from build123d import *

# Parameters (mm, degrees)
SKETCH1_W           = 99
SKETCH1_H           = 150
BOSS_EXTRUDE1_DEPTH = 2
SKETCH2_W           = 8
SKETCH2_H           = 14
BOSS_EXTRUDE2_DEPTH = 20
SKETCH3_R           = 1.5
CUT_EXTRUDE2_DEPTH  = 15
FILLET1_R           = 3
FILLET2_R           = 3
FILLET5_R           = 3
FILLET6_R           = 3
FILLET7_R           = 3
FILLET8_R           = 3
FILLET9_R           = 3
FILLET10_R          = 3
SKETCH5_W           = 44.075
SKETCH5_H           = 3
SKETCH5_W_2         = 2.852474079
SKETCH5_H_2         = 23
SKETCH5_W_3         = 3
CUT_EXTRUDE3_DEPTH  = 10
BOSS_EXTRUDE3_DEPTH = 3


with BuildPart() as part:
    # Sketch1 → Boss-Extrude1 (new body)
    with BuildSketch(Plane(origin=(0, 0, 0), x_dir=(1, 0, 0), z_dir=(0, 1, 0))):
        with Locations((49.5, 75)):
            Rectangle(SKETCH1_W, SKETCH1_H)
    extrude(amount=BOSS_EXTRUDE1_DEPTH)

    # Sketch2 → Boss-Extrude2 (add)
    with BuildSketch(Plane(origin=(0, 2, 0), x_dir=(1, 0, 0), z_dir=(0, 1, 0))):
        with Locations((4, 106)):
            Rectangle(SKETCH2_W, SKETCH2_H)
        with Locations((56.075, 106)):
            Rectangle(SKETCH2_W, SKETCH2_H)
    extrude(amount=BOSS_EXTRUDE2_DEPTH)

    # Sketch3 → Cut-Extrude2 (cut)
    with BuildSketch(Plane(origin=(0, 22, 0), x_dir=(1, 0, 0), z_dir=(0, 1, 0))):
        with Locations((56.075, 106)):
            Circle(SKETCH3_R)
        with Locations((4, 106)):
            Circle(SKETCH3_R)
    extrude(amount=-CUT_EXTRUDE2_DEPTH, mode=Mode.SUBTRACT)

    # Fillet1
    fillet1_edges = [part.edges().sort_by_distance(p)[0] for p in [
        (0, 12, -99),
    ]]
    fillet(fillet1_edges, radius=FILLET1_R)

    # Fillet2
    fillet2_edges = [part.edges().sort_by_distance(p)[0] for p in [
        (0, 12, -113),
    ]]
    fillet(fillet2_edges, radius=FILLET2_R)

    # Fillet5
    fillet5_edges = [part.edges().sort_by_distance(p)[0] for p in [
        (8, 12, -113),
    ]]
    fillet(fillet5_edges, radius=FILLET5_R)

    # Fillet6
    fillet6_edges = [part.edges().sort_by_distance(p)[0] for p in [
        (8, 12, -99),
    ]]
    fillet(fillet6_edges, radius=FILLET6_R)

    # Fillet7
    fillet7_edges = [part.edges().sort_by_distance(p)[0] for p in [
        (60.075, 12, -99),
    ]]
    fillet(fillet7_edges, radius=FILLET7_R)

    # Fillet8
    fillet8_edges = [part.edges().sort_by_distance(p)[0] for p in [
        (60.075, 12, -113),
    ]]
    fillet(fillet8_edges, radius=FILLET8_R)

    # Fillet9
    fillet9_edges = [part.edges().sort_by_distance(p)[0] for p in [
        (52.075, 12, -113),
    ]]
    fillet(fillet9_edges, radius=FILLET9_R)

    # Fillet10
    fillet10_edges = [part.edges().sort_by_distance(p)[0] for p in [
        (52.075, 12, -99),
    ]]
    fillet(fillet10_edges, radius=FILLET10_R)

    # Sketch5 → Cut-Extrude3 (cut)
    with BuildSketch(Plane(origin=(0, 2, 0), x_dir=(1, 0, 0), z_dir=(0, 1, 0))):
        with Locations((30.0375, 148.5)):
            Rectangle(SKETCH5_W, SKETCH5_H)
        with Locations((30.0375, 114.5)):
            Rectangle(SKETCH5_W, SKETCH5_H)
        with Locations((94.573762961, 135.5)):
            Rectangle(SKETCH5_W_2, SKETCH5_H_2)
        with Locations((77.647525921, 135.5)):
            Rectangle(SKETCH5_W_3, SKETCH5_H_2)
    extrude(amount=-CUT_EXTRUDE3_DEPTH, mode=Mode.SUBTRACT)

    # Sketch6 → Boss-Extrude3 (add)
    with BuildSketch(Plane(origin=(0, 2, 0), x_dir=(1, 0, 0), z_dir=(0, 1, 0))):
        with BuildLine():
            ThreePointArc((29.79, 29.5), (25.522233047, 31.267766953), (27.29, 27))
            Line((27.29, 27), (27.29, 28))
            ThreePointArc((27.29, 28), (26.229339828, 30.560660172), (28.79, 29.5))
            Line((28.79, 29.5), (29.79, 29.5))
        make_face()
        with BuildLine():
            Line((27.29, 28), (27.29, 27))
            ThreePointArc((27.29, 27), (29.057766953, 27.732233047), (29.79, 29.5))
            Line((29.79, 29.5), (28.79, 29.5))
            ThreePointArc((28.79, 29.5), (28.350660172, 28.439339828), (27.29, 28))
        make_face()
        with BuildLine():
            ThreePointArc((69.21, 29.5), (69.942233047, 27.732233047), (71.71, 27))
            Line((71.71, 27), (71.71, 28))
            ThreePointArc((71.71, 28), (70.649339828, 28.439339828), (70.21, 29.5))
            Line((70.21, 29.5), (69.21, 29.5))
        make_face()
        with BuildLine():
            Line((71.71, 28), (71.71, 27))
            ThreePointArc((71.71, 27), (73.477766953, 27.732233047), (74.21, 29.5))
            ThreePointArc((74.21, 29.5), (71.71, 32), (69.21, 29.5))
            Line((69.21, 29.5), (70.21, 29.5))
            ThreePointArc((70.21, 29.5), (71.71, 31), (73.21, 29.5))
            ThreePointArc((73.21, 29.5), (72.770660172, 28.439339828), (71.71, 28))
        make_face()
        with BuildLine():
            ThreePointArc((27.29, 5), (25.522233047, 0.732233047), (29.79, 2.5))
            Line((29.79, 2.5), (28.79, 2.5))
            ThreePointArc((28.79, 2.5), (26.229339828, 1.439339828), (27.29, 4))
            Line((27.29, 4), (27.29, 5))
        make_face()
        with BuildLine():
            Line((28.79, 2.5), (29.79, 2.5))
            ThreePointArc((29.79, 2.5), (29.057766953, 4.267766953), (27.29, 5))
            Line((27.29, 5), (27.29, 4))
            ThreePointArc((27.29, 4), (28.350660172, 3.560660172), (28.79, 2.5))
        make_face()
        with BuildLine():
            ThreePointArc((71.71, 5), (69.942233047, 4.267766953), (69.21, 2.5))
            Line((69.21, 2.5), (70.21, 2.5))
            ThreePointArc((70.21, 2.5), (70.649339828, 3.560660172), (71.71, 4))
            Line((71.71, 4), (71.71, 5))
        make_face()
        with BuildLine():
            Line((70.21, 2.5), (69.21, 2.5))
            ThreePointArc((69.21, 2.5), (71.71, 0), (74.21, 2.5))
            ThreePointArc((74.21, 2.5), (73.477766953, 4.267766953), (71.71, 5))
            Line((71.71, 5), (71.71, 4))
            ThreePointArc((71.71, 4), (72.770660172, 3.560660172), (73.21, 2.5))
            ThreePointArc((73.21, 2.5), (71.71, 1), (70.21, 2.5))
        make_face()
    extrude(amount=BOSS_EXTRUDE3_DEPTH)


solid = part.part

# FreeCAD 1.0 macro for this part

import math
import FreeCAD as App
import Part
import Sketcher

V = App.Vector
Q = App.Units.Quantity


def edges_at(feature, points):
    """Names of the edges that pass closest to the given points."""
    edges = feature.Shape.Edges
    near = lambda p: min(range(len(edges)), key=lambda i: edges[i].distToShape(Part.Vertex(*p))[0])
    return sorted({f"Edge{near(p) + 1}" for p in points})


def add_polygon(sketch, points):
    """Adds a closed chain of lines whose ends are joined by coincident constraints."""
    first, n = sketch.GeometryCount, len(points)
    for a, b in zip(points, points[1:] + points[:1]):
        sketch.addGeometry(Part.LineSegment(App.Vector(*a, 0), App.Vector(*b, 0)), False)
    for i in range(n):
        sketch.addConstraint(Sketcher.Constraint("Coincident", first + i, 2, first + (i + 1) % n, 1))

doc = App.newDocument("Part")
params = doc.addObject("Spreadsheet::Sheet", "Params")
for row, (alias, value) in enumerate([
    ("sketch1_width", "99 mm"),
    ("sketch1_height", "150 mm"),
    ("pad1_length", "2 mm"),
    ("sketch2_width", "8 mm"),
    ("sketch2_height", "14 mm"),
    ("pad2_length", "20 mm"),
    ("sketch3_diameter", "3 mm"),
    ("pocket1_length", "15 mm"),
    ("fillet_radius", "3 mm"),
    ("fillet2_radius", "3 mm"),
    ("fillet3_radius", "3 mm"),
    ("fillet4_radius", "3 mm"),
    ("fillet5_radius", "3 mm"),
    ("fillet6_radius", "3 mm"),
    ("fillet7_radius", "3 mm"),
    ("fillet8_radius", "3 mm"),
    ("sketch4_width", "3 mm"),
    ("sketch4_height", "23 mm"),
    ("pocket2_length", "10 mm"),
    ("sketch5_radius", "2.5 mm"),
    ("sketch5_radius2", "1.5 mm"),
    ("pad3_length", "3 mm"),
], start=1):
    params.set(f"A{row}", alias)
    params.set(f"B{row}", "=" + value)
    params.setAlias(f"B{row}", alias)

body = doc.addObject("PartDesign::Body", "Body")

sketch1 = doc.addObject("Sketcher::SketchObject", "Sketch")
body.addObject(sketch1)
sketch1.AttachmentSupport = (doc.XZ_Plane, [""])
sketch1.MapMode = "FlatFace"
add_polygon(sketch1, [(0, -150), (0, 0), (99, 0), (99, -150)])
sketch1.addConstraint(Sketcher.Constraint("Vertical", 0))
sketch1.addConstraint(Sketcher.Constraint("Horizontal", 1))
sketch1.addConstraint(Sketcher.Constraint("Vertical", 2))
sketch1.addConstraint(Sketcher.Constraint("Horizontal", 3))
sketch1.addConstraint(Sketcher.Constraint("Coincident", 0, 2, -1, 1))
sketch1.addConstraint(Sketcher.Constraint("DistanceX", 1, 1, 1, 2, Q("99 mm")))
sketch1.addConstraint(Sketcher.Constraint("DistanceY", 0, 1, 0, 2, Q("150 mm")))
sketch1.setExpression("Constraints[9]", "Params.sketch1_width")
sketch1.setExpression("Constraints[10]", "Params.sketch1_height")
pad1 = doc.addObject("PartDesign::Pad", "Pad")
body.addObject(pad1)
pad1.Profile = sketch1
pad1.setExpression("Length", "Params.pad1_length")
pad1.Reversed = True

sketch2 = doc.addObject("Sketcher::SketchObject", "Sketch001")
body.addObject(sketch2)
sketch2.AttachmentSupport = (doc.XZ_Plane, [""])
sketch2.MapMode = "FlatFace"
sketch2.AttachmentOffset = App.Placement(V(0, 0, -2), App.Rotation())
add_polygon(sketch2, [(0, -113), (0, -99), (8, -99), (8, -113)])
add_polygon(sketch2, [(52, -113), (52, -99), (60, -99), (60, -113)])
sketch2.addConstraint(Sketcher.Constraint("Vertical", 0))
sketch2.addConstraint(Sketcher.Constraint("Horizontal", 1))
sketch2.addConstraint(Sketcher.Constraint("Vertical", 2))
sketch2.addConstraint(Sketcher.Constraint("Horizontal", 3))
sketch2.addConstraint(Sketcher.Constraint("Vertical", 4))
sketch2.addConstraint(Sketcher.Constraint("Horizontal", 5))
sketch2.addConstraint(Sketcher.Constraint("Vertical", 6))
sketch2.addConstraint(Sketcher.Constraint("Horizontal", 7))
sketch2.addConstraint(Sketcher.Constraint("PointOnObject", 0, 2, -2))
sketch2.addConstraint(Sketcher.Constraint("Horizontal", 1, 2, 4, 2))
sketch2.addConstraint(Sketcher.Constraint("Horizontal", 3, 2, 6, 2))
sketch2.addConstraint(Sketcher.Constraint("Equal", 3, 5))
sketch2.addConstraint(Sketcher.Constraint("DistanceX", 1, 1, 1, 2, Q("8 mm")))
sketch2.addConstraint(Sketcher.Constraint("DistanceY", 0, 1, 0, 2, Q("14 mm")))
sketch2.addConstraint(Sketcher.Constraint("DistanceY", 0, 2, -1, 1, Q("99 mm")))
sketch2.addConstraint(Sketcher.Constraint("DistanceX", -1, 1, 4, 2, Q("52.075 mm")))
sketch2.setExpression("Constraints[20]", "Params.sketch2_width")
sketch2.setExpression("Constraints[21]", "Params.sketch2_height")
pad2 = doc.addObject("PartDesign::Pad", "Pad001")
body.addObject(pad2)
pad2.Profile = sketch2
pad2.setExpression("Length", "Params.pad2_length")
pad2.Reversed = True

sketch3 = doc.addObject("Sketcher::SketchObject", "Sketch002")
body.addObject(sketch3)
sketch3.AttachmentSupport = (doc.XZ_Plane, [""])
sketch3.MapMode = "FlatFace"
sketch3.AttachmentOffset = App.Placement(V(0, 0, -22), App.Rotation())
sketch3.addGeometry(Part.Circle(V(56.1, -106, 0), V(0, 0, 1), 1.5), False)
sketch3.addGeometry(Part.Circle(V(4, -106, 0), V(0, 0, 1), 1.5), False)
sketch3.addConstraint(Sketcher.Constraint("Equal", 0, 1))
sketch3.addConstraint(Sketcher.Constraint("Horizontal", 0, 3, 1, 3))
sketch3.addConstraint(Sketcher.Constraint("Diameter", 0, Q("3 mm")))
sketch3.addConstraint(Sketcher.Constraint("DistanceY", 0, 3, -1, 1, Q("106 mm")))
sketch3.addConstraint(Sketcher.Constraint("DistanceX", -1, 1, 1, 3, Q("4 mm")))
sketch3.addConstraint(Sketcher.Constraint("DistanceX", -1, 1, 0, 3, Q("56.075 mm")))
sketch3.setExpression("Constraints[2]", "Params.sketch3_diameter")
pocket1 = doc.addObject("PartDesign::Pocket", "Pocket")
body.addObject(pocket1)
pocket1.Profile = sketch3
pocket1.setExpression("Length", "Params.pocket1_length")
pocket1.Reversed = True
doc.recompute()

fillet = doc.addObject("PartDesign::Fillet", "Fillet")
body.addObject(fillet)
fillet.Base = (pocket1, edges_at(pocket1, [(0, 12, -99)]))
fillet.setExpression("Radius", "Params.fillet_radius")
doc.recompute()

fillet2 = doc.addObject("PartDesign::Fillet", "Fillet001")
body.addObject(fillet2)
fillet2.Base = (fillet, edges_at(fillet, [(0, 12, -113)]))
fillet2.setExpression("Radius", "Params.fillet2_radius")
doc.recompute()

fillet3 = doc.addObject("PartDesign::Fillet", "Fillet002")
body.addObject(fillet3)
fillet3.Base = (fillet2, edges_at(fillet2, [(8, 12, -113)]))
fillet3.setExpression("Radius", "Params.fillet3_radius")
doc.recompute()

fillet4 = doc.addObject("PartDesign::Fillet", "Fillet003")
body.addObject(fillet4)
fillet4.Base = (fillet3, edges_at(fillet3, [(8, 12, -99)]))
fillet4.setExpression("Radius", "Params.fillet4_radius")
doc.recompute()

fillet5 = doc.addObject("PartDesign::Fillet", "Fillet004")
body.addObject(fillet5)
fillet5.Base = (fillet4, edges_at(fillet4, [(60.075, 12, -99)]))
fillet5.setExpression("Radius", "Params.fillet5_radius")
doc.recompute()

fillet6 = doc.addObject("PartDesign::Fillet", "Fillet005")
body.addObject(fillet6)
fillet6.Base = (fillet5, edges_at(fillet5, [(60.075, 12, -113)]))
fillet6.setExpression("Radius", "Params.fillet6_radius")
doc.recompute()

fillet7 = doc.addObject("PartDesign::Fillet", "Fillet006")
body.addObject(fillet7)
fillet7.Base = (fillet6, edges_at(fillet6, [(52.075, 12, -113)]))
fillet7.setExpression("Radius", "Params.fillet7_radius")
doc.recompute()

fillet8 = doc.addObject("PartDesign::Fillet", "Fillet007")
body.addObject(fillet8)
fillet8.Base = (fillet7, edges_at(fillet7, [(52.075, 12, -99)]))
fillet8.setExpression("Radius", "Params.fillet8_radius")

sketch4 = doc.addObject("Sketcher::SketchObject", "Sketch003")
body.addObject(sketch4)
sketch4.AttachmentSupport = (doc.XZ_Plane, [""])
sketch4.MapMode = "FlatFace"
sketch4.AttachmentOffset = App.Placement(V(0, 0, -2), App.Rotation())
add_polygon(sketch4, [(8, -150), (8, -147), (52.1, -147), (52.1, -150)])
add_polygon(sketch4, [(8, -116), (8, -113), (52.1, -113), (52.1, -116)])
add_polygon(sketch4, [(93.1, -147), (93.1, -124), (96, -124), (96, -147)])
add_polygon(sketch4, [(76.1, -147), (76.1, -124), (79.1, -124), (79.1, -147)])
sketch4.addConstraint(Sketcher.Constraint("Vertical", 0))
sketch4.addConstraint(Sketcher.Constraint("Horizontal", 1))
sketch4.addConstraint(Sketcher.Constraint("Vertical", 2))
sketch4.addConstraint(Sketcher.Constraint("Horizontal", 3))
sketch4.addConstraint(Sketcher.Constraint("Vertical", 4))
sketch4.addConstraint(Sketcher.Constraint("Horizontal", 5))
sketch4.addConstraint(Sketcher.Constraint("Vertical", 6))
sketch4.addConstraint(Sketcher.Constraint("Horizontal", 7))
sketch4.addConstraint(Sketcher.Constraint("Vertical", 8))
sketch4.addConstraint(Sketcher.Constraint("Horizontal", 9))
sketch4.addConstraint(Sketcher.Constraint("Vertical", 10))
sketch4.addConstraint(Sketcher.Constraint("Horizontal", 11))
sketch4.addConstraint(Sketcher.Constraint("Vertical", 12))
sketch4.addConstraint(Sketcher.Constraint("Horizontal", 13))
sketch4.addConstraint(Sketcher.Constraint("Vertical", 14))
sketch4.addConstraint(Sketcher.Constraint("Horizontal", 15))
sketch4.addConstraint(Sketcher.Constraint("Horizontal", 1, 2, 10, 2))
sketch4.addConstraint(Sketcher.Constraint("Horizontal", 9, 2, 12, 2))
sketch4.addConstraint(Sketcher.Constraint("Horizontal", 11, 2, 14, 2))
sketch4.addConstraint(Sketcher.Constraint("Vertical", 3, 2, 4, 2))
sketch4.addConstraint(Sketcher.Constraint("Vertical", 2, 2, 5, 2))
sketch4.addConstraint(Sketcher.Constraint("Equal", 15, 0))
sketch4.addConstraint(Sketcher.Constraint("Equal", 2, 4))
sketch4.addConstraint(Sketcher.Constraint("DistanceX", 13, 1, 13, 2, Q("3 mm")))
sketch4.addConstraint(Sketcher.Constraint("DistanceY", 8, 1, 8, 2, Q("23 mm")))
sketch4.addConstraint(Sketcher.Constraint("DistanceX", -1, 1, 0, 2, Q("8 mm")))
sketch4.addConstraint(Sketcher.Constraint("DistanceY", 0, 2, -1, 1, Q("147 mm")))
sketch4.addConstraint(Sketcher.Constraint("DistanceY", 4, 2, -1, 1, Q("113 mm")))
sketch4.addConstraint(Sketcher.Constraint("DistanceX", -1, 1, 9, 2, Q("96 mm")))
sketch4.addConstraint(Sketcher.Constraint("DistanceX", 12, 2, 8, 2, Q("17 mm")))
sketch4.addConstraint(Sketcher.Constraint("DistanceX", 1, 1, 1, 2, Q("44.075 mm")))
sketch4.addConstraint(Sketcher.Constraint("DistanceX", 9, 1, 9, 2, Q("2.852474 mm")))
sketch4.setExpression("Constraints[39]", "Params.sketch4_width")
sketch4.setExpression("Constraints[40]", "Params.sketch4_height")
pocket2 = doc.addObject("PartDesign::Pocket", "Pocket001")
body.addObject(pocket2)
pocket2.Profile = sketch4
pocket2.setExpression("Length", "Params.pocket2_length")
pocket2.Reversed = True

sketch5 = doc.addObject("Sketcher::SketchObject", "Sketch004")
body.addObject(sketch5)
sketch5.AttachmentSupport = (doc.XZ_Plane, [""])
sketch5.MapMode = "FlatFace"
sketch5.AttachmentOffset = App.Placement(V(0, 0, -2), App.Rotation())
sketch5.addGeometry(Part.ArcOfCircle(Part.Circle(V(27.3, -29.5, 0), V(0, 0, 1), 2.5), math.radians(90), math.radians(360)), False)
sketch5.addGeometry(Part.ArcOfCircle(Part.Circle(V(27.3, -29.5, 0), V(0, 0, 1), 2.5), math.radians(0), math.radians(90)), False)
sketch5.addGeometry(Part.ArcOfCircle(Part.Circle(V(27.3, -29.5, 0), V(0, 0, 1), 1.5), math.radians(90), math.radians(360)), False)
sketch5.addGeometry(Part.ArcOfCircle(Part.Circle(V(27.3, -29.5, 0), V(0, 0, 1), 1.5), math.radians(0), math.radians(90)), False)
sketch5.addGeometry(Part.ArcOfCircle(Part.Circle(V(71.7, -29.5, 0), V(0, 0, 1), 2.5), math.radians(90), math.radians(180)), False)
sketch5.addGeometry(Part.ArcOfCircle(Part.Circle(V(71.7, -29.5, 0), V(0, 0, 1), 2.5), math.radians(0), math.radians(90)), False)
sketch5.addGeometry(Part.ArcOfCircle(Part.Circle(V(71.7, -29.5, 0), V(0, 0, 1), 2.5), math.radians(180), math.radians(360)), False)
sketch5.addGeometry(Part.ArcOfCircle(Part.Circle(V(71.7, -29.5, 0), V(0, 0, 1), 1.5), math.radians(90), math.radians(180)), False)
sketch5.addGeometry(Part.ArcOfCircle(Part.Circle(V(71.7, -29.5, 0), V(0, 0, 1), 1.5), math.radians(180), math.radians(360)), False)
sketch5.addGeometry(Part.ArcOfCircle(Part.Circle(V(71.7, -29.5, 0), V(0, 0, 1), 1.5), math.radians(0), math.radians(90)), False)
sketch5.addGeometry(Part.ArcOfCircle(Part.Circle(V(27.3, -2.5, 0), V(0, 0, 1), 2.5), math.radians(0), math.radians(270)), False)
sketch5.addGeometry(Part.ArcOfCircle(Part.Circle(V(27.3, -2.5, 0), V(0, 0, 1), 2.5), math.radians(-90), math.radians(0)), False)
sketch5.addGeometry(Part.ArcOfCircle(Part.Circle(V(27.3, -2.5, 0), V(0, 0, 1), 1.5), math.radians(0), math.radians(270)), False)
sketch5.addGeometry(Part.ArcOfCircle(Part.Circle(V(27.3, -2.5, 0), V(0, 0, 1), 1.5), math.radians(-90), math.radians(0)), False)
sketch5.addGeometry(Part.ArcOfCircle(Part.Circle(V(71.7, -2.5, 0), V(0, 0, 1), 2.5), math.radians(180), math.radians(270)), False)
sketch5.addGeometry(Part.ArcOfCircle(Part.Circle(V(71.7, -2.5, 0), V(0, 0, 1), 2.5), math.radians(0), math.radians(180)), False)
sketch5.addGeometry(Part.ArcOfCircle(Part.Circle(V(71.7, -2.5, 0), V(0, 0, 1), 2.5), math.radians(-90), math.radians(0)), False)
sketch5.addGeometry(Part.ArcOfCircle(Part.Circle(V(71.7, -2.5, 0), V(0, 0, 1), 1.5), math.radians(180), math.radians(270)), False)
sketch5.addGeometry(Part.ArcOfCircle(Part.Circle(V(71.7, -2.5, 0), V(0, 0, 1), 1.5), math.radians(-90), math.radians(0)), False)
sketch5.addGeometry(Part.ArcOfCircle(Part.Circle(V(71.7, -2.5, 0), V(0, 0, 1), 1.5), math.radians(0), math.radians(180)), False)
sketch5.addConstraint(Sketcher.Constraint("Tangent", 0, 1, 1, 2))
sketch5.addConstraint(Sketcher.Constraint("Coincident", 1, 1, 0, 2))
sketch5.addConstraint(Sketcher.Constraint("Tangent", 2, 1, 3, 2))
sketch5.addConstraint(Sketcher.Constraint("Coincident", 3, 1, 2, 2))
sketch5.addConstraint(Sketcher.Constraint("Tangent", 4, 1, 5, 2))
sketch5.addConstraint(Sketcher.Constraint("Tangent", 5, 1, 6, 2))
sketch5.addConstraint(Sketcher.Constraint("Tangent", 6, 1, 4, 2))
sketch5.addConstraint(Sketcher.Constraint("Tangent", 7, 2, 8, 1))
sketch5.addConstraint(Sketcher.Constraint("Tangent", 8, 2, 9, 1))
sketch5.addConstraint(Sketcher.Constraint("Tangent", 9, 2, 7, 1))
sketch5.addConstraint(Sketcher.Constraint("Tangent", 10, 1, 11, 2))
sketch5.addConstraint(Sketcher.Constraint("Coincident", 11, 1, 10, 2))
sketch5.addConstraint(Sketcher.Constraint("Tangent", 12, 1, 13, 2))
sketch5.addConstraint(Sketcher.Constraint("Coincident", 13, 1, 12, 2))
sketch5.addConstraint(Sketcher.Constraint("Tangent", 14, 1, 15, 2))
sketch5.addConstraint(Sketcher.Constraint("Tangent", 15, 1, 16, 2))
sketch5.addConstraint(Sketcher.Constraint("Tangent", 16, 1, 14, 2))
sketch5.addConstraint(Sketcher.Constraint("Tangent", 17, 2, 18, 1))
sketch5.addConstraint(Sketcher.Constraint("Tangent", 18, 2, 19, 1))
sketch5.addConstraint(Sketcher.Constraint("Tangent", 19, 2, 17, 1))
sketch5.addConstraint(Sketcher.Constraint("Coincident", 2, 3, 0, 3))
sketch5.addConstraint(Sketcher.Constraint("Coincident", 7, 3, 4, 3))
sketch5.addConstraint(Sketcher.Constraint("Coincident", 12, 3, 10, 3))
sketch5.addConstraint(Sketcher.Constraint("Coincident", 17, 3, 14, 3))
sketch5.addConstraint(Sketcher.Constraint("Equal", 1, 4))
sketch5.addConstraint(Sketcher.Constraint("Equal", 3, 7))
sketch5.addConstraint(Sketcher.Constraint("Equal", 6, 10))
sketch5.addConstraint(Sketcher.Constraint("Equal", 9, 12))
sketch5.addConstraint(Sketcher.Constraint("Equal", 11, 14))
sketch5.addConstraint(Sketcher.Constraint("Equal", 13, 17))
sketch5.addConstraint(Sketcher.Constraint("Horizontal", 3, 3, 4, 3))
sketch5.addConstraint(Sketcher.Constraint("Horizontal", 13, 3, 14, 3))
sketch5.addConstraint(Sketcher.Constraint("Horizontal", 9, 3, 1, 1))
sketch5.addConstraint(Sketcher.Constraint("Horizontal", 1, 1, 3, 1))
sketch5.addConstraint(Sketcher.Constraint("Horizontal", 3, 1, 5, 1))
sketch5.addConstraint(Sketcher.Constraint("Horizontal", 5, 1, 6, 1))
sketch5.addConstraint(Sketcher.Constraint("Horizontal", 6, 1, 7, 2))
sketch5.addConstraint(Sketcher.Constraint("Horizontal", 7, 2, 8, 2))
sketch5.addConstraint(Sketcher.Constraint("Horizontal", 19, 3, 10, 1))
sketch5.addConstraint(Sketcher.Constraint("Horizontal", 10, 1, 12, 1))
sketch5.addConstraint(Sketcher.Constraint("Horizontal", 12, 1, 14, 1))
sketch5.addConstraint(Sketcher.Constraint("Horizontal", 14, 1, 15, 1))
sketch5.addConstraint(Sketcher.Constraint("Horizontal", 15, 1, 18, 2))
sketch5.addConstraint(Sketcher.Constraint("Horizontal", 18, 2, 19, 2))
sketch5.addConstraint(Sketcher.Constraint("Vertical", 3, 3, 10, 3))
sketch5.addConstraint(Sketcher.Constraint("Vertical", 9, 3, 14, 3))
sketch5.addConstraint(Sketcher.Constraint("Vertical", 13, 3, 0, 1))
sketch5.addConstraint(Sketcher.Constraint("Vertical", 0, 1, 2, 1))
sketch5.addConstraint(Sketcher.Constraint("Vertical", 19, 3, 4, 1))
sketch5.addConstraint(Sketcher.Constraint("Vertical", 4, 1, 9, 2))
sketch5.addConstraint(Sketcher.Constraint("Vertical", 2, 1, 11, 1))
sketch5.addConstraint(Sketcher.Constraint("Vertical", 11, 1, 13, 1))
sketch5.addConstraint(Sketcher.Constraint("Vertical", 9, 2, 16, 1))
sketch5.addConstraint(Sketcher.Constraint("Vertical", 16, 1, 17, 2))
sketch5.addConstraint(Sketcher.Constraint("Radius", 0, Q("2.5 mm")))
sketch5.addConstraint(Sketcher.Constraint("Radius", 2, Q("1.5 mm")))
sketch5.addConstraint(Sketcher.Constraint("DistanceY", 0, 1, -1, 1, Q("27 mm")))
sketch5.addConstraint(Sketcher.Constraint("DistanceY", 11, 1, -1, 1, Q("5 mm")))
sketch5.addConstraint(Sketcher.Constraint("DistanceX", -1, 1, 0, 3, Q("27.29 mm")))
sketch5.addConstraint(Sketcher.Constraint("DistanceX", -1, 1, 4, 3, Q("71.71 mm")))
sketch5.setExpression("Constraints[54]", "Params.sketch5_radius")
sketch5.setExpression("Constraints[55]", "Params.sketch5_radius2")
pad3 = doc.addObject("PartDesign::Pad", "Pad002")
body.addObject(pad3)
pad3.Profile = sketch5
pad3.setExpression("Length", "Params.pad3_length")
pad3.Reversed = True

doc.recompute()
